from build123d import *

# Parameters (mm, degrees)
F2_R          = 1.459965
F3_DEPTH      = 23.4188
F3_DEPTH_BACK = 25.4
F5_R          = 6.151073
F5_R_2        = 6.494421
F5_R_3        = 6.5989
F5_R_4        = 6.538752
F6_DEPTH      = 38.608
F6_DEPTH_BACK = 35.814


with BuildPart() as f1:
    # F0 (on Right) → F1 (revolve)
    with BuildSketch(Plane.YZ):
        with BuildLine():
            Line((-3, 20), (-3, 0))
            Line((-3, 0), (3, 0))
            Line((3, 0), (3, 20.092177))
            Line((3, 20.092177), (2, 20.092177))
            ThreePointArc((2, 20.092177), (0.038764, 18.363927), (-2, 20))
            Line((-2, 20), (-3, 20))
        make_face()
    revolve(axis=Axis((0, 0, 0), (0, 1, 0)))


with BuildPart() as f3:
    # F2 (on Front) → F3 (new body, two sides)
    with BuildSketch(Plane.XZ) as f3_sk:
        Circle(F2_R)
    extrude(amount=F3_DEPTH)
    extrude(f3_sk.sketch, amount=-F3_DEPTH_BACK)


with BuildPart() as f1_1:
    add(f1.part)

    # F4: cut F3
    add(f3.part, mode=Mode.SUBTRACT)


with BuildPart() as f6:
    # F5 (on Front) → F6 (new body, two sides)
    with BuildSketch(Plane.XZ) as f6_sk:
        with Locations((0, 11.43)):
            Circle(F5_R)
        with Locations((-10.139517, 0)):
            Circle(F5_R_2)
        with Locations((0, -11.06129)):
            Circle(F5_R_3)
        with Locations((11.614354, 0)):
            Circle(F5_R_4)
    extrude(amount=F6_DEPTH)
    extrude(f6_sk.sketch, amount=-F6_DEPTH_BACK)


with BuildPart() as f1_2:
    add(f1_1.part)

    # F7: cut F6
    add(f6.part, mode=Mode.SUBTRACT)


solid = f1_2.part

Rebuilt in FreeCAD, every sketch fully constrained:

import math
import FreeCAD as App
import Part
import Sketcher
Q = App.Units.Quantity

doc = App.newDocument("Part")
body = doc.addObject("PartDesign::Body", "Body")

sketch1 = doc.addObject("Sketcher::SketchObject", "Sketch")
body.addObject(sketch1)
sketch1.AttachmentSupport = (doc.YZ_Plane, [""])
sketch1.MapMode = "FlatFace"
sketch1.addGeometry(Part.LineSegment(App.Vector(-3, 20, 0), App.Vector(-3, 0, 0)), False)
sketch1.addGeometry(Part.LineSegment(App.Vector(-3, 0, 0), App.Vector(3, 0, 0)), False)
sketch1.addGeometry(Part.LineSegment(App.Vector(3, 0, 0), App.Vector(3, 20.1, 0)), False)
sketch1.addGeometry(Part.LineSegment(App.Vector(3, 20.1, 0), App.Vector(2, 20.1, 0)), False)
sketch1.addGeometry(Part.ArcOfCircle(Part.Circle(App.Vector(0, 20.4, 0), App.Vector(0, 0, 1), 2), math.radians(-169), math.radians(-9)), False)
sketch1.addGeometry(Part.LineSegment(App.Vector(-2, 20, 0), App.Vector(-3, 20, 0)), False)
sketch1.addConstraint(Sketcher.Constraint("Coincident", 0, 2, 1, 1))
sketch1.addConstraint(Sketcher.Constraint("Coincident", 1, 2, 2, 1))
sketch1.addConstraint(Sketcher.Constraint("Coincident", 2, 2, 3, 1))
sketch1.addConstraint(Sketcher.Constraint("Coincident", 3, 2, 4, 2))
sketch1.addConstraint(Sketcher.Constraint("Coincident", 4, 1, 5, 1))
sketch1.addConstraint(Sketcher.Constraint("Coincident", 5, 2, 0, 1))
sketch1.addConstraint(Sketcher.Constraint("Vertical", 0))
sketch1.addConstraint(Sketcher.Constraint("Horizontal", 1))
sketch1.addConstraint(Sketcher.Constraint("Vertical", 2))
sketch1.addConstraint(Sketcher.Constraint("Horizontal", 3))
sketch1.addConstraint(Sketcher.Constraint("Horizontal", 5))
sketch1.addConstraint(Sketcher.Constraint("Symmetric", 0, 2, 1, 2, -1, 1))
sketch1.addConstraint(Sketcher.Constraint("Equal", 3, 5))
sketch1.addConstraint(Sketcher.Constraint("DistanceX", 1, 1, 1, 2, Q("6 mm")))
sketch1.addConstraint(Sketcher.Constraint("DistanceX", 3, 2, 3, 1, Q("1 mm")))
sketch1.addConstraint(Sketcher.Constraint("DistanceY", 0, 2, 0, 1, Q("20 mm")))
sketch1.addConstraint(Sketcher.Constraint("Radius", 4, Q("2.030566 mm")))
sketch1.addConstraint(Sketcher.Constraint("DistanceY", 2, 1, 2, 2, Q("20.092177 mm")))
revolution = doc.addObject("PartDesign::Revolution", "Revolution")
body.addObject(revolution)
revolution.Profile = sketch1
revolution.ReferenceAxis = (sketch1, ["H_Axis"])
revolution.Angle = 360
body2 = doc.addObject("PartDesign::Body", "Body001")

sketch2 = doc.addObject("Sketcher::SketchObject", "Sketch001")
body2.addObject(sketch2)
sketch2.AttachmentSupport = (doc.getObject("XZ_Plane001"), [""])
sketch2.MapMode = "FlatFace"
sketch2.addGeometry(Part.Circle(App.Vector(0, 0, 0), App.Vector(0, 0, 1), 1.5), False)
sketch2.addConstraint(Sketcher.Constraint("Coincident", 0, 3, -1, 1))
sketch2.addConstraint(Sketcher.Constraint("Diameter", 0, Q("2.91993 mm")))
pad1 = doc.addObject("PartDesign::Pad", "Pad")
body2.addObject(pad1)
pad1.Profile = sketch2
pad1.Type = "TwoLengths"
pad1.Length = 23.4188
pad1.Length2 = 25.4
doc.recompute()

boolean = doc.addObject("PartDesign::Boolean", "Boolean")
body.addObject(boolean)
boolean.Type = "Cut"
boolean.addObjects([body2])
body3 = doc.addObject("PartDesign::Body", "Body002")
body3.AllowCompound = True

sketch3 = doc.addObject("Sketcher::SketchObject", "Sketch002")
body3.addObject(sketch3)
sketch3.AttachmentSupport = (doc.getObject("XZ_Plane002"), [""])
sketch3.MapMode = "FlatFace"
sketch3.addGeometry(Part.Circle(App.Vector(0, 11, 0), App.Vector(0, 0, 1), 6), False)
sketch3.addGeometry(Part.Circle(App.Vector(-10, 0, 0), App.Vector(0, 0, 1), 6), False)
sketch3.addGeometry(Part.Circle(App.Vector(0, -11, 0), App.Vector(0, 0, 1), 7), False)
sketch3.addGeometry(Part.Circle(App.Vector(12, 0, 0), App.Vector(0, 0, 1), 7), False)
sketch3.addConstraint(Sketcher.Constraint("PointOnObject", 0, 3, -2))
sketch3.addConstraint(Sketcher.Constraint("PointOnObject", 1, 3, -1))
sketch3.addConstraint(Sketcher.Constraint("PointOnObject", 2, 3, -2))
sketch3.addConstraint(Sketcher.Constraint("PointOnObject", 3, 3, -1))
sketch3.addConstraint(Sketcher.Constraint("Diameter", 2, Q("13.1978 mm")))
sketch3.addConstraint(Sketcher.Constraint("DistanceY", -1, 1, 0, 3, Q("11.43 mm")))
sketch3.addConstraint(Sketcher.Constraint("Diameter", 0, Q("12.302146 mm")))
sketch3.addConstraint(Sketcher.Constraint("Diameter", 1, Q("12.988842 mm")))
sketch3.addConstraint(Sketcher.Constraint("Diameter", 3, Q("13.077504 mm")))
sketch3.addConstraint(Sketcher.Constraint("DistanceY", 2, 3, -1, 1, Q("11.06129 mm")))
sketch3.addConstraint(Sketcher.Constraint("DistanceX", 1, 3, 3, 3, Q("21.753871 mm")))
sketch3.addConstraint(Sketcher.Constraint("DistanceX", 1, 3, -1, 1, Q("10.139517 mm")))
pad2 = doc.addObject("PartDesign::Pad", "Pad001")
body3.addObject(pad2)
pad2.Profile = sketch3
pad2.Type = "TwoLengths"
pad2.Length = 38.608
pad2.Length2 = 35.814
doc.recompute()

boolean2 = doc.addObject("PartDesign::Boolean", "Boolean001")
body.addObject(boolean2)
boolean2.Type = "Cut"
boolean2.addObjects([body3])

doc.recompute()
